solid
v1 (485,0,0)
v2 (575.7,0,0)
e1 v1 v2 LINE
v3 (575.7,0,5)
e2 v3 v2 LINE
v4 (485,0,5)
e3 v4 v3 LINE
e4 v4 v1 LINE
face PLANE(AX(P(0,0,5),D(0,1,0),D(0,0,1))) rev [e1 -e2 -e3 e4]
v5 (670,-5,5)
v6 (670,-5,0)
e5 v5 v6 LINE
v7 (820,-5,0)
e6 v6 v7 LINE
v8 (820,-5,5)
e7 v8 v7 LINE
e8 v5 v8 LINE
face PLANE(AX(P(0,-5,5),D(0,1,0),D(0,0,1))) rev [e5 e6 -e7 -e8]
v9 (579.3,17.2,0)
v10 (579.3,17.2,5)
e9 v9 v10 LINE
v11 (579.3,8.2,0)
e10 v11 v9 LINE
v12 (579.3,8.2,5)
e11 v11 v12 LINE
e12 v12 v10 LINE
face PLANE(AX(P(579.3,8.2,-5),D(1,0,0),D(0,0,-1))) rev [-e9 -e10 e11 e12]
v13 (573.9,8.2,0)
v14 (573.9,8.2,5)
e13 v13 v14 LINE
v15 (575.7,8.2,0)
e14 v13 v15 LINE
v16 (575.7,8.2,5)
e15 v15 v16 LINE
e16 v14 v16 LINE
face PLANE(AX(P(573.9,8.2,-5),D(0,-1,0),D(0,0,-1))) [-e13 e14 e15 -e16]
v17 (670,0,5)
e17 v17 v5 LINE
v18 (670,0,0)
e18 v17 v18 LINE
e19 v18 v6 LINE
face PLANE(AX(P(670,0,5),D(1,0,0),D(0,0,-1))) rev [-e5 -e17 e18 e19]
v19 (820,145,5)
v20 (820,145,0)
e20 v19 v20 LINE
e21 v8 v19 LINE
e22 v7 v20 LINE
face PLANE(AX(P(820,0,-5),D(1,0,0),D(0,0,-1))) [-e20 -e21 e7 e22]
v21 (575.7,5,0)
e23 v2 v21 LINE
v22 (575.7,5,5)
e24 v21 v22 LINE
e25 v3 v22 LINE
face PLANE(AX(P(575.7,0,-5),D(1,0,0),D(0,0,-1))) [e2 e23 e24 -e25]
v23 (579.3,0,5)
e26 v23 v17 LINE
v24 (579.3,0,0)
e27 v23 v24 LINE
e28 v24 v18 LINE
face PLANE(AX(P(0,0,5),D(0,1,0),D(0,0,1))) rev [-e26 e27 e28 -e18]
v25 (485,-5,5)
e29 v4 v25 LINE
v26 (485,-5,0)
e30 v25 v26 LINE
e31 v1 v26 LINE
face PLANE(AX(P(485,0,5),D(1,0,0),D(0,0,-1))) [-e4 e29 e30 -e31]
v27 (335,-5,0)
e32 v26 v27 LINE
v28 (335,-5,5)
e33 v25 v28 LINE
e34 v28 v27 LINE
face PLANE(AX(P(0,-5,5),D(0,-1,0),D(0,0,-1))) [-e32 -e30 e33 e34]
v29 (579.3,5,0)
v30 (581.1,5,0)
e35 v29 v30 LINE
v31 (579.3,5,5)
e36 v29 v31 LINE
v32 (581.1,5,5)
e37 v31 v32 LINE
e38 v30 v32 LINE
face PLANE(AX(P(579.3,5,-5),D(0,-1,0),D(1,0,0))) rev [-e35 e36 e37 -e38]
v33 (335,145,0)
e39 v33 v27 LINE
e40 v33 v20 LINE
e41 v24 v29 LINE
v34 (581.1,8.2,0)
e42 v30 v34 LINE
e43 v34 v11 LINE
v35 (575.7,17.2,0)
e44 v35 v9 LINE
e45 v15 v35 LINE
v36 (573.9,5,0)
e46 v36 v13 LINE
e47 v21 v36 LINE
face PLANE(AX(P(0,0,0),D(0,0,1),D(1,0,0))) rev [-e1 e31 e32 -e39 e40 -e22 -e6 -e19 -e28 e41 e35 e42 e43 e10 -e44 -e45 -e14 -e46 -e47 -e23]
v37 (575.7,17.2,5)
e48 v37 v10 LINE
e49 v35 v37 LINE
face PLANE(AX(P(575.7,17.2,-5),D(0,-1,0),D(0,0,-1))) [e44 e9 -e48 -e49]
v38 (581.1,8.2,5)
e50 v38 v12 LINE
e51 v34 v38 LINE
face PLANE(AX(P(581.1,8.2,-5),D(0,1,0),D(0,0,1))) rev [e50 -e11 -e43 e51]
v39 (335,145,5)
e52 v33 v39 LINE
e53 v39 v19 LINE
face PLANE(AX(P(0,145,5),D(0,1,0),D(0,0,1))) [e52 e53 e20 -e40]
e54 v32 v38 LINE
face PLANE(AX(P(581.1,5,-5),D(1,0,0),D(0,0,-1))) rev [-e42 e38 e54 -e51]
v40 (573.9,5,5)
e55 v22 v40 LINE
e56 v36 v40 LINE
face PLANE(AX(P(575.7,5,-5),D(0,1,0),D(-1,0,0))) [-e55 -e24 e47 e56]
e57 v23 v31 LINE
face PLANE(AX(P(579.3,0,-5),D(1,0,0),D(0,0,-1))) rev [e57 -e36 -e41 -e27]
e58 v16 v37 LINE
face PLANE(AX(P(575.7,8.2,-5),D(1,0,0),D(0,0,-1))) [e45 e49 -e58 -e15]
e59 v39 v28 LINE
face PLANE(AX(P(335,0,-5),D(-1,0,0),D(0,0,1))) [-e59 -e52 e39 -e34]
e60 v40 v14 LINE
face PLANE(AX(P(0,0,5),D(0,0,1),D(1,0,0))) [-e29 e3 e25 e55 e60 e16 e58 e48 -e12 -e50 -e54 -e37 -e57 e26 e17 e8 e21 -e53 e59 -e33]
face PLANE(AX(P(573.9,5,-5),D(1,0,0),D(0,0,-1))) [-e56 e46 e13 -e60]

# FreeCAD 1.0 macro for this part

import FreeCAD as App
import Part
import Sketcher

V = App.Vector
Q = App.Units.Quantity

doc = App.newDocument("Part")
params = doc.addObject("Spreadsheet::Sheet", "Params")
for row, (alias, value) in enumerate([
    ("sketch1_width", "185 mm"),
    ("sketch1_width2", "300 mm"),
    ("sketch1_height", "145 mm"),
    ("sketch1_height2", "5 mm"),
    ("pad1_length", "5 mm"),
    ("sketch2_width", "5 mm"),
    ("sketch2_height", "35 mm"),
    ("pocket1_length", "5 mm"),
    ("sketch3_height", "5 mm"),
    ("sketch3_height2", "9 mm"),
    ("sketch3_width", "3.6 mm"),
    ("sketch3_width2", "1.8 mm"),
    ("sketch3_height3", "3.2 mm"),
    ("pocket2_length", "10 mm"),
    ("pocket3_length", "10 mm"),
], start=1):
    params.set(f"A{row}", alias)
    params.set(f"B{row}", "=" + value)
    params.setAlias(f"B{row}", alias)

body = doc.addObject("PartDesign::Body", "Body")

# Sketch on XY plane
sketch1 = body.newObject("Sketcher::SketchObject", "Sketch")
sketch1.AttachmentSupport = (doc.getObject("XY_Plane"), [""])
sketch1.MapMode = "FlatFace"
sketch1.addGeometry([
    Part.LineSegment(V(0, 145, 0), V(0, 0, 0)),  # 0
    Part.LineSegment(V(0, 0, 0), V(185, 0, 0)),  # 1
    Part.LineSegment(V(185, 0, 0), V(185, -5, 0)),  # 2
    Part.LineSegment(V(185, -5, 0), V(485, -5, 0)),  # 3
    Part.LineSegment(V(485, -5, 0), V(485, 0, 0)),  # 4
    Part.LineSegment(V(485, 0, 0), V(670, 0, 0)),  # 5
    Part.LineSegment(V(670, 0, 0), V(670, -5, 0)),  # 6
    Part.LineSegment(V(670, -5, 0), V(970, -5, 0)),  # 7
    Part.LineSegment(V(970, -5, 0), V(970, 0, 0)),  # 8
    Part.LineSegment(V(970, 0, 0), V(1155, 0, 0)),  # 9
    Part.LineSegment(V(1155, 0, 0), V(1155, -5, 0)),  # 10
    Part.LineSegment(V(1155, -5, 0), V(1455, -5, 0)),  # 11
    Part.LineSegment(V(1455, -5, 0), V(1455, 0, 0)),  # 12
    Part.LineSegment(V(1455, 0, 0), V(1640, 0, 0)),  # 13
    Part.LineSegment(V(1640, 0, 0), V(1640, 145, 0)),  # 14
    Part.LineSegment(V(1640, 145, 0), V(0, 145, 0)),  # 15
], False)
sketch1.addConstraint([
    Sketcher.Constraint("Coincident", 0, 2, 1, 1),
    Sketcher.Constraint("Coincident", 1, 2, 2, 1),
    Sketcher.Constraint("Coincident", 2, 2, 3, 1),
    Sketcher.Constraint("Coincident", 3, 2, 4, 1),
    Sketcher.Constraint("Coincident", 4, 2, 5, 1),
    Sketcher.Constraint("Coincident", 5, 2, 6, 1),
    Sketcher.Constraint("Coincident", 6, 2, 7, 1),
    Sketcher.Constraint("Coincident", 7, 2, 8, 1),
    Sketcher.Constraint("Coincident", 8, 2, 9, 1),
    Sketcher.Constraint("Coincident", 9, 2, 10, 1),
    Sketcher.Constraint("Coincident", 10, 2, 11, 1),
    Sketcher.Constraint("Coincident", 11, 2, 12, 1),
    Sketcher.Constraint("Coincident", 12, 2, 13, 1),
    Sketcher.Constraint("Coincident", 13, 2, 14, 1),
    Sketcher.Constraint("Coincident", 14, 2, 15, 1),
    Sketcher.Constraint("Coincident", 15, 2, 0, 1),
    Sketcher.Constraint("Vertical", 0),
    Sketcher.Constraint("Horizontal", 1),
    Sketcher.Constraint("Vertical", 2),
    Sketcher.Constraint("Horizontal", 3),
    Sketcher.Constraint("Vertical", 4),
    Sketcher.Constraint("Horizontal", 5),
    Sketcher.Constraint("Vertical", 6),
    Sketcher.Constraint("Horizontal", 7),
    Sketcher.Constraint("Vertical", 8),
    Sketcher.Constraint("Horizontal", 9),
    Sketcher.Constraint("Vertical", 10),
    Sketcher.Constraint("Horizontal", 11),
    Sketcher.Constraint("Vertical", 12),
    Sketcher.Constraint("Horizontal", 13),
    Sketcher.Constraint("Vertical", 14),
    Sketcher.Constraint("Horizontal", 15),
    Sketcher.Constraint("Coincident", 0, 2, -1, 1),
    Sketcher.Constraint("PointOnObject", 4, 2, -1),
    Sketcher.Constraint("PointOnObject", 8, 2, -1),
    Sketcher.Constraint("PointOnObject", 12, 2, -1),
    Sketcher.Constraint("Horizontal", 3, 2, 6, 2),
    Sketcher.Constraint("Horizontal", 7, 2, 10, 2),
    Sketcher.Constraint("Equal", 1, 5),
    Sketcher.Constraint("Equal", 3, 7),
    Sketcher.Constraint("Equal", 5, 9),
    Sketcher.Constraint("Equal", 7, 11),
    Sketcher.Constraint("Equal", 9, 13),
    Sketcher.Constraint("DistanceX", 1, 1, 1, 2, Q("185 mm")),
    Sketcher.Constraint("DistanceX", 3, 1, 3, 2, Q("300 mm")),
    Sketcher.Constraint("DistanceY", 0, 2, 0, 1, Q("145 mm")),
    Sketcher.Constraint("DistanceY", 2, 2, 2, 1, Q("5 mm")),
])
sketch1.setExpression("Constraints[43]", "Params.sketch1_width")
sketch1.setExpression("Constraints[44]", "Params.sketch1_width2")
sketch1.setExpression("Constraints[45]", "Params.sketch1_height")
sketch1.setExpression("Constraints[46]", "Params.sketch1_height2")
pad1 = body.newObject("PartDesign::Pad", "Pad")
pad1.Profile = sketch1
pad1.setExpression("Length", "Params.pad1_length")

# Sketch on XY plane
sketch2 = body.newObject("Sketcher::SketchObject", "Sketch001")
sketch2.AttachmentSupport = (doc.getObject("XY_Plane"), [""])
sketch2.MapMode = "FlatFace"
sketch2.AttachmentOffset = App.Placement(V(0, 0, 5), App.Rotation())
sketch2.addGeometry([
    Part.LineSegment(V(1635, 126, 0), V(1635, 91, 0)),  # 0
    Part.LineSegment(V(1635, 91, 0), V(1640, 91, 0)),  # 1
    Part.LineSegment(V(1640, 91, 0), V(1640, 126, 0)),  # 2
    Part.LineSegment(V(1640, 126, 0), V(1635, 126, 0)),  # 3
    Part.LineSegment(V(1635, 54, 0), V(1635, 19, 0)),  # 4
    Part.LineSegment(V(1635, 19, 0), V(1640, 19, 0)),  # 5
    Part.LineSegment(V(1640, 19, 0), V(1640, 54, 0)),  # 6
    Part.LineSegment(V(1640, 54, 0), V(1635, 54, 0)),  # 7
    Part.LineSegment(V(0, 54, 0), V(0, 19, 0)),  # 8
    Part.LineSegment(V(0, 19, 0), V(5, 19, 0)),  # 9
    Part.LineSegment(V(5, 19, 0), V(5, 54, 0)),  # 10
    Part.LineSegment(V(5, 54, 0), V(0, 54, 0)),  # 11
    Part.LineSegment(V(0, 126, 0), V(0, 91, 0)),  # 12
    Part.LineSegment(V(0, 91, 0), V(5, 91, 0)),  # 13
    Part.LineSegment(V(5, 91, 0), V(5, 126, 0)),  # 14
    Part.LineSegment(V(5, 126, 0), V(0, 126, 0)),  # 15
], False)
sketch2.addConstraint([
    Sketcher.Constraint("Coincident", 0, 2, 1, 1),
    Sketcher.Constraint("Coincident", 1, 2, 2, 1),
    Sketcher.Constraint("Coincident", 2, 2, 3, 1),
    Sketcher.Constraint("Coincident", 3, 2, 0, 1),
    Sketcher.Constraint("Coincident", 4, 2, 5, 1),
    Sketcher.Constraint("Coincident", 5, 2, 6, 1),
    Sketcher.Constraint("Coincident", 6, 2, 7, 1),
    Sketcher.Constraint("Coincident", 7, 2, 4, 1),
    Sketcher.Constraint("Coincident", 8, 2, 9, 1),
    Sketcher.Constraint("Coincident", 9, 2, 10, 1),
    Sketcher.Constraint("Coincident", 10, 2, 11, 1),
    Sketcher.Constraint("Coincident", 11, 2, 8, 1),
    Sketcher.Constraint("Coincident", 12, 2, 13, 1),
    Sketcher.Constraint("Coincident", 13, 2, 14, 1),
    Sketcher.Constraint("Coincident", 14, 2, 15, 1),
    Sketcher.Constraint("Coincident", 15, 2, 12, 1),
    Sketcher.Constraint("Vertical", 0),
    Sketcher.Constraint("Horizontal", 1),
    Sketcher.Constraint("Vertical", 2),
    Sketcher.Constraint("Horizontal", 3),
    Sketcher.Constraint("Vertical", 4),
    Sketcher.Constraint("Horizontal", 5),
    Sketcher.Constraint("Vertical", 6),
    Sketcher.Constraint("Horizontal", 7),
    Sketcher.Constraint("Vertical", 8),
    Sketcher.Constraint("Horizontal", 9),
    Sketcher.Constraint("Vertical", 10),
    Sketcher.Constraint("Horizontal", 11),
    Sketcher.Constraint("Vertical", 12),
    Sketcher.Constraint("Horizontal", 13),
    Sketcher.Constraint("Vertical", 14),
    Sketcher.Constraint("Horizontal", 15),
    Sketcher.Constraint("PointOnObject", 8, 2, -2),
    Sketcher.Constraint("PointOnObject", 12, 2, -2),
    Sketcher.Constraint("Horizontal", 5, 2, 8, 2),
    Sketcher.Constraint("Horizontal", 7, 2, 10, 2),
    Sketcher.Constraint("Horizontal", 1, 2, 12, 2),
    Sketcher.Constraint("Horizontal", 3, 2, 14, 2),
    Sketcher.Constraint("Vertical", 3, 2, 4, 2),
    Sketcher.Constraint("Vertical", 2, 2, 5, 2),
    Sketcher.Constraint("Vertical", 10, 2, 13, 2),
    Sketcher.Constraint("Equal", 7, 9),
    Sketcher.Constraint("Equal", 2, 4),
    Sketcher.Constraint("DistanceX", 1, 1, 1, 2, Q("5 mm")),
    Sketcher.Constraint("DistanceY", 0, 2, 0, 1, Q("35 mm")),
    Sketcher.Constraint("DistanceX", -1, 1, 0, 2, Q("1635 mm")),
    Sketcher.Constraint("DistanceY", 4, 2, 0, 2, Q("72.5 mm")),
    Sketcher.Constraint("DistanceY", -1, 1, 0, 2, Q("91.25 mm")),
])
sketch2.setExpression("Constraints[43]", "Params.sketch2_width")
sketch2.setExpression("Constraints[44]", "Params.sketch2_height")
pocket1 = body.newObject("PartDesign::Pocket", "Pocket")
pocket1.Profile = sketch2
pocket1.setExpression("Length", "Params.pocket1_length")

# Sketch on XY plane
sketch3 = body.newObject("Sketcher::SketchObject", "Sketch002")
sketch3.AttachmentSupport = (doc.getObject("XY_Plane"), [""])
sketch3.MapMode = "FlatFace"
sketch3.AttachmentOffset = App.Placement(V(0, 0, 5), App.Rotation())
sketch3.addGeometry([
    Part.LineSegment(V(575.7, 0, 0), V(579.3, 0, 0)),  # 0
    Part.LineSegment(V(579.3, 0, 0), V(579.3, 5, 0)),  # 1
    Part.LineSegment(V(579.3, 5, 0), V(581.1, 5, 0)),  # 2
    Part.LineSegment(V(581.1, 5, 0), V(581.1, 8.2, 0)),  # 3
    Part.LineSegment(V(581.1, 8.2, 0), V(579.3, 8.2, 0)),  # 4
    Part.LineSegment(V(579.3, 8.2, 0), V(579.3, 17.2, 0)),  # 5
    Part.LineSegment(V(579.3, 17.2, 0), V(575.7, 17.2, 0)),  # 6
    Part.LineSegment(V(575.7, 17.2, 0), V(575.7, 8.2, 0)),  # 7
    Part.LineSegment(V(575.7, 8.2, 0), V(573.9, 8.2, 0)),  # 8
    Part.LineSegment(V(573.9, 8.2, 0), V(573.9, 5, 0)),  # 9
    Part.LineSegment(V(573.9, 5, 0), V(575.7, 5, 0)),  # 10
    Part.LineSegment(V(575.7, 5, 0), V(575.7, 0, 0)),  # 11
    Part.LineSegment(V(1064.3, 8.2, 0), V(1064.3, 17.2, 0)),  # 12
    Part.LineSegment(V(1064.3, 17.2, 0), V(1060.7, 17.2, 0)),  # 13
    Part.LineSegment(V(1060.7, 17.2, 0), V(1060.7, 8.2, 0)),  # 14
    Part.LineSegment(V(1060.7, 8.2, 0), V(1058.9, 8.2, 0)),  # 15
    Part.LineSegment(V(1058.9, 8.2, 0), V(1058.9, 5, 0)),  # 16
    Part.LineSegment(V(1058.9, 5, 0), V(1060.7, 5, 0)),  # 17
    Part.LineSegment(V(1060.7, 5, 0), V(1060.7, 0, 0)),  # 18
    Part.LineSegment(V(1060.7, 0, 0), V(1064.3, 0, 0)),  # 19
    Part.LineSegment(V(1064.3, 0, 0), V(1064.3, 5, 0)),  # 20
    Part.LineSegment(V(1064.3, 5, 0), V(1066.1, 5, 0)),  # 21
    Part.LineSegment(V(1066.1, 5, 0), V(1066.1, 8.2, 0)),  # 22
    Part.LineSegment(V(1066.1, 8.2, 0), V(1064.3, 8.2, 0)),  # 23
], False)
sketch3.addConstraint([
    Sketcher.Constraint("Coincident", 0, 2, 1, 1),
    Sketcher.Constraint("Coincident", 1, 2, 2, 1),
    Sketcher.Constraint("Coincident", 2, 2, 3, 1),
    Sketcher.Constraint("Coincident", 3, 2, 4, 1),
    Sketcher.Constraint("Coincident", 4, 2, 5, 1),
    Sketcher.Constraint("Coincident", 5, 2, 6, 1),
    Sketcher.Constraint("Coincident", 6, 2, 7, 1),
    Sketcher.Constraint("Coincident", 7, 2, 8, 1),
    Sketcher.Constraint("Coincident", 8, 2, 9, 1),
    Sketcher.Constraint("Coincident", 9, 2, 10, 1),
    Sketcher.Constraint("Coincident", 10, 2, 11, 1),
    Sketcher.Constraint("Coincident", 11, 2, 0, 1),
    Sketcher.Constraint("Coincident", 12, 2, 13, 1),
    Sketcher.Constraint("Coincident", 13, 2, 14, 1),
    Sketcher.Constraint("Coincident", 14, 2, 15, 1),
    Sketcher.Constraint("Coincident", 15, 2, 16, 1),
    Sketcher.Constraint("Coincident", 16, 2, 17, 1),
    Sketcher.Constraint("Coincident", 17, 2, 18, 1),
    Sketcher.Constraint("Coincident", 18, 2, 19, 1),
    Sketcher.Constraint("Coincident", 19, 2, 20, 1),
    Sketcher.Constraint("Coincident", 20, 2, 21, 1),
    Sketcher.Constraint("Coincident", 21, 2, 22, 1),
    Sketcher.Constraint("Coincident", 22, 2, 23, 1),
    Sketcher.Constraint("Coincident", 23, 2, 12, 1),
    Sketcher.Constraint("Horizontal", 0),
    Sketcher.Constraint("Vertical", 1),
    Sketcher.Constraint("Horizontal", 2),
    Sketcher.Constraint("Vertical", 3),
    Sketcher.Constraint("Horizontal", 4),
    Sketcher.Constraint("Vertical", 5),
    Sketcher.Constraint("Horizontal", 6),
    Sketcher.Constraint("Vertical", 7),
    Sketcher.Constraint("Horizontal", 8),
    Sketcher.Constraint("Vertical", 9),
    Sketcher.Constraint("Horizontal", 10),
    Sketcher.Constraint("Vertical", 11),
    Sketcher.Constraint("Vertical", 12),
    Sketcher.Constraint("Horizontal", 13),
    Sketcher.Constraint("Vertical", 14),
    Sketcher.Constraint("Horizontal", 15),
    Sketcher.Constraint("Vertical", 16),
    Sketcher.Constraint("Horizontal", 17),
    Sketcher.Constraint("Vertical", 18),
    Sketcher.Constraint("Horizontal", 19),
    Sketcher.Constraint("Vertical", 20),
    Sketcher.Constraint("Horizontal", 21),
    Sketcher.Constraint("Vertical", 22),
    Sketcher.Constraint("Horizontal", 23),
    Sketcher.Constraint("PointOnObject", 0, 2, -1),
    Sketcher.Constraint("PointOnObject", 18, 2, -1),
    Sketcher.Constraint("Horizontal", 4, 2, 7, 2),
    Sketcher.Constraint("Horizontal", 2, 2, 9, 2),
    Sketcher.Constraint("Horizontal", 6, 2, 12, 2),
    Sketcher.Constraint("Horizontal", 8, 2, 14, 2),
    Sketcher.Constraint("Horizontal", 10, 2, 16, 2),
    Sketcher.Constraint("Horizontal", 17, 2, 20, 2),
    Sketcher.Constraint("Horizontal", 15, 2, 22, 2),
    Sketcher.Constraint("Vertical", 1, 2, 4, 2),
    Sketcher.Constraint("Vertical", 7, 2, 10, 2),
    Sketcher.Constraint("Vertical", 14, 2, 17, 2),
    Sketcher.Constraint("Vertical", 12, 2, 19, 2),
    Sketcher.Constraint("Equal", 4, 8),
    Sketcher.Constraint("Equal", 6, 13),
    Sketcher.Constraint("Equal", 10, 15),
    Sketcher.Constraint("Equal", 17, 21),
    Sketcher.Constraint("DistanceY", 1, 1, 1, 2, Q("5 mm")),
    Sketcher.Constraint("DistanceY", 5, 1, 5, 2, Q("9 mm")),
    Sketcher.Constraint("DistanceX", 0, 1, 0, 2, Q("3.6 mm")),
    Sketcher.Constraint("DistanceX", 2, 1, 2, 2, Q("1.8 mm")),
    Sketcher.Constraint("DistanceY", 3, 1, 3, 2, Q("3.2 mm")),
    Sketcher.Constraint("DistanceX", 5, 2, 12, 2, Q("485 mm")),
    Sketcher.Constraint("DistanceX", -1, 1, 0, 2, Q("579.3 mm")),
])
sketch3.setExpression("Constraints[65]", "Params.sketch3_height")
sketch3.setExpression("Constraints[66]", "Params.sketch3_height2")
sketch3.setExpression("Constraints[67]", "Params.sketch3_width")
sketch3.setExpression("Constraints[68]", "Params.sketch3_width2")
sketch3.setExpression("Constraints[69]", "Params.sketch3_height3")
pocket2 = body.newObject("PartDesign::Pocket", "Pocket001")
pocket2.Profile = sketch3
pocket2.setExpression("Length", "Params.pocket2_length")

# Sketch on XY plane
sketch4 = body.newObject("Sketcher::SketchObject", "Sketch003")
sketch4.AttachmentSupport = (doc.getObject("XY_Plane"), [""])
sketch4.MapMode = "FlatFace"
sketch4.AttachmentOffset = App.Placement(V(0, 0, 5), App.Rotation())
sketch4.addGeometry([
    Part.LineSegment(V(820, 145, 0), V(820, -135, 0)),  # 0
    Part.LineSegment(V(820, -135, 0), V(1681, -135, 0)),  # 1
    Part.LineSegment(V(1681, -135, 0), V(1681, 145, 0)),  # 2
    Part.LineSegment(V(1681, 145, 0), V(820, 145, 0)),  # 3
    Part.LineSegment(V(335, 145, 0), V(-54, 246, 0)),  # 4
    Part.LineSegment(V(-54, 246, 0), V(-54, -118, 0)),  # 5
    Part.LineSegment(V(-54, -118, 0), V(335, -118, 0)),  # 6
    Part.LineSegment(V(335, -118, 0), V(335, 145, 0)),  # 7
], False)
sketch4.addConstraint([
    Sketcher.Constraint("Coincident", 0, 2, 1, 1),
    Sketcher.Constraint("Coincident", 1, 2, 2, 1),
    Sketcher.Constraint("Coincident", 2, 2, 3, 1),
    Sketcher.Constraint("Coincident", 3, 2, 0, 1),
    Sketcher.Constraint("Coincident", 4, 2, 5, 1),
    Sketcher.Constraint("Coincident", 5, 2, 6, 1),
    Sketcher.Constraint("Coincident", 6, 2, 7, 1),
    Sketcher.Constraint("Coincident", 7, 2, 4, 1),
    Sketcher.Constraint("Vertical", 0),
    Sketcher.Constraint("Horizontal", 1),
    Sketcher.Constraint("Vertical", 2),
    Sketcher.Constraint("Horizontal", 3),
    Sketcher.Constraint("Vertical", 5),
    Sketcher.Constraint("Horizontal", 6),
    Sketcher.Constraint("Vertical", 7),
    Sketcher.Constraint("Horizontal", 3, 2, 7, 2),
    Sketcher.Constraint("DistanceX", -1, 1, 0, 2, Q("820 mm")),
    Sketcher.Constraint("DistanceY", -1, 1, 2, 2, Q("145 mm")),
    Sketcher.Constraint("DistanceX", -1, 1, 6, 2, Q("335 mm")),
    Sketcher.Constraint("DistanceX", 6, 1, 6, 2, Q("389.126179 mm")),
    Sketcher.Constraint("DistanceY", 5, 2, 5, 1, Q("363.158812 mm")),
    Sketcher.Constraint("Distance", 4, Q("401.92663 mm")),
    Sketcher.Constraint("DistanceX", 1, 1, 1, 2, Q("860.905313 mm")),
    Sketcher.Constraint("DistanceY", 0, 2, 0, 1, Q("280.215135 mm")),
])
pocket3 = body.newObject("PartDesign::Pocket", "Pocket002")
pocket3.Profile = sketch4
pocket3.setExpression("Length", "Params.pocket3_length")

doc.recompute()
